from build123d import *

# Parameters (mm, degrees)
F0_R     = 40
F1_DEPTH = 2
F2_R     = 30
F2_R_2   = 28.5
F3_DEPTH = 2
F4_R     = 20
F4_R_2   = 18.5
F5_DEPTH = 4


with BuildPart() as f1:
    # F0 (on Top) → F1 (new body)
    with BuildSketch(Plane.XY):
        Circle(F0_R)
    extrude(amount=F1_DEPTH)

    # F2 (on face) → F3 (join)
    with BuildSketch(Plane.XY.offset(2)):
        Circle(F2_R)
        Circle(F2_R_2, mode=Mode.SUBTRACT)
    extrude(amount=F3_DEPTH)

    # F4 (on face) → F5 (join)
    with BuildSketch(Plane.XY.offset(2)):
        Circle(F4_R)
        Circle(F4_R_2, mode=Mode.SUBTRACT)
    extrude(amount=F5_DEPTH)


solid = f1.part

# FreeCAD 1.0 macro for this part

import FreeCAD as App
import Part
import Sketcher
from FreeCAD import Vector

doc = App.newDocument("Part")
body = doc.addObject("PartDesign::Body", "Body")

sketch1 = doc.addObject("Sketcher::SketchObject", "Sketch")
body.addObject(sketch1)
sketch1.AttachmentSupport = (doc.XY_Plane, [""])
sketch1.MapMode = "FlatFace"
sketch1.addGeometry(Part.Circle(Vector(0, 0, 0), Vector(0, 0, 1), 40), False)
sketch1.addConstraint([
    Sketcher.Constraint("Coincident", 0, 3, -1, 1),
    Sketcher.Constraint("Diameter", 0, 80.0),
])
pad1 = doc.addObject("PartDesign::Pad", "Pad")
body.addObject(pad1)
pad1.Profile = sketch1
pad1.Length = 2

sketch2 = doc.addObject("Sketcher::SketchObject", "Sketch001")
body.addObject(sketch2)
sketch2.AttachmentSupport = (doc.XY_Plane, [""])
sketch2.MapMode = "FlatFace"
sketch2.AttachmentOffset = App.Placement(Vector(0, 0, 2), App.Rotation())
sketch2.addGeometry([
    Part.Circle(Vector(0, 0, 0), Vector(0, 0, 1), 30),
    Part.Circle(Vector(0, 0, 0), Vector(0, 0, 1), 28.5),
], False)
sketch2.addConstraint([
    Sketcher.Constraint("Coincident", 0, 3, -1, 1),
    Sketcher.Constraint("Coincident", 1, 3, -1, 1),
    Sketcher.Constraint("Diameter", 0, 60.0),
    Sketcher.Constraint("Diameter", 1, 57.0),
])
pad2 = doc.addObject("PartDesign::Pad", "Pad001")
body.addObject(pad2)
pad2.Profile = sketch2
pad2.Length = 2

sketch3 = doc.addObject("Sketcher::SketchObject", "Sketch002")
body.addObject(sketch3)
sketch3.AttachmentSupport = (doc.XY_Plane, [""])
sketch3.MapMode = "FlatFace"
sketch3.AttachmentOffset = App.Placement(Vector(0, 0, 2), App.Rotation())
sketch3.addGeometry([
    Part.Circle(Vector(0, 0, 0), Vector(0, 0, 1), 20),
    Part.Circle(Vector(0, 0, 0), Vector(0, 0, 1), 18.5),
], False)
sketch3.addConstraint([
    Sketcher.Constraint("Coincident", 0, 3, -1, 1),
    Sketcher.Constraint("Coincident", 1, 3, -1, 1),
    Sketcher.Constraint("Diameter", 0, 40.0),
    Sketcher.Constraint("Diameter", 1, 37.0),
])
pad3 = doc.addObject("PartDesign::Pad", "Pad002")
body.addObject(pad3)
pad3.Profile = sketch3
pad3.Length = 4

doc.recompute()
